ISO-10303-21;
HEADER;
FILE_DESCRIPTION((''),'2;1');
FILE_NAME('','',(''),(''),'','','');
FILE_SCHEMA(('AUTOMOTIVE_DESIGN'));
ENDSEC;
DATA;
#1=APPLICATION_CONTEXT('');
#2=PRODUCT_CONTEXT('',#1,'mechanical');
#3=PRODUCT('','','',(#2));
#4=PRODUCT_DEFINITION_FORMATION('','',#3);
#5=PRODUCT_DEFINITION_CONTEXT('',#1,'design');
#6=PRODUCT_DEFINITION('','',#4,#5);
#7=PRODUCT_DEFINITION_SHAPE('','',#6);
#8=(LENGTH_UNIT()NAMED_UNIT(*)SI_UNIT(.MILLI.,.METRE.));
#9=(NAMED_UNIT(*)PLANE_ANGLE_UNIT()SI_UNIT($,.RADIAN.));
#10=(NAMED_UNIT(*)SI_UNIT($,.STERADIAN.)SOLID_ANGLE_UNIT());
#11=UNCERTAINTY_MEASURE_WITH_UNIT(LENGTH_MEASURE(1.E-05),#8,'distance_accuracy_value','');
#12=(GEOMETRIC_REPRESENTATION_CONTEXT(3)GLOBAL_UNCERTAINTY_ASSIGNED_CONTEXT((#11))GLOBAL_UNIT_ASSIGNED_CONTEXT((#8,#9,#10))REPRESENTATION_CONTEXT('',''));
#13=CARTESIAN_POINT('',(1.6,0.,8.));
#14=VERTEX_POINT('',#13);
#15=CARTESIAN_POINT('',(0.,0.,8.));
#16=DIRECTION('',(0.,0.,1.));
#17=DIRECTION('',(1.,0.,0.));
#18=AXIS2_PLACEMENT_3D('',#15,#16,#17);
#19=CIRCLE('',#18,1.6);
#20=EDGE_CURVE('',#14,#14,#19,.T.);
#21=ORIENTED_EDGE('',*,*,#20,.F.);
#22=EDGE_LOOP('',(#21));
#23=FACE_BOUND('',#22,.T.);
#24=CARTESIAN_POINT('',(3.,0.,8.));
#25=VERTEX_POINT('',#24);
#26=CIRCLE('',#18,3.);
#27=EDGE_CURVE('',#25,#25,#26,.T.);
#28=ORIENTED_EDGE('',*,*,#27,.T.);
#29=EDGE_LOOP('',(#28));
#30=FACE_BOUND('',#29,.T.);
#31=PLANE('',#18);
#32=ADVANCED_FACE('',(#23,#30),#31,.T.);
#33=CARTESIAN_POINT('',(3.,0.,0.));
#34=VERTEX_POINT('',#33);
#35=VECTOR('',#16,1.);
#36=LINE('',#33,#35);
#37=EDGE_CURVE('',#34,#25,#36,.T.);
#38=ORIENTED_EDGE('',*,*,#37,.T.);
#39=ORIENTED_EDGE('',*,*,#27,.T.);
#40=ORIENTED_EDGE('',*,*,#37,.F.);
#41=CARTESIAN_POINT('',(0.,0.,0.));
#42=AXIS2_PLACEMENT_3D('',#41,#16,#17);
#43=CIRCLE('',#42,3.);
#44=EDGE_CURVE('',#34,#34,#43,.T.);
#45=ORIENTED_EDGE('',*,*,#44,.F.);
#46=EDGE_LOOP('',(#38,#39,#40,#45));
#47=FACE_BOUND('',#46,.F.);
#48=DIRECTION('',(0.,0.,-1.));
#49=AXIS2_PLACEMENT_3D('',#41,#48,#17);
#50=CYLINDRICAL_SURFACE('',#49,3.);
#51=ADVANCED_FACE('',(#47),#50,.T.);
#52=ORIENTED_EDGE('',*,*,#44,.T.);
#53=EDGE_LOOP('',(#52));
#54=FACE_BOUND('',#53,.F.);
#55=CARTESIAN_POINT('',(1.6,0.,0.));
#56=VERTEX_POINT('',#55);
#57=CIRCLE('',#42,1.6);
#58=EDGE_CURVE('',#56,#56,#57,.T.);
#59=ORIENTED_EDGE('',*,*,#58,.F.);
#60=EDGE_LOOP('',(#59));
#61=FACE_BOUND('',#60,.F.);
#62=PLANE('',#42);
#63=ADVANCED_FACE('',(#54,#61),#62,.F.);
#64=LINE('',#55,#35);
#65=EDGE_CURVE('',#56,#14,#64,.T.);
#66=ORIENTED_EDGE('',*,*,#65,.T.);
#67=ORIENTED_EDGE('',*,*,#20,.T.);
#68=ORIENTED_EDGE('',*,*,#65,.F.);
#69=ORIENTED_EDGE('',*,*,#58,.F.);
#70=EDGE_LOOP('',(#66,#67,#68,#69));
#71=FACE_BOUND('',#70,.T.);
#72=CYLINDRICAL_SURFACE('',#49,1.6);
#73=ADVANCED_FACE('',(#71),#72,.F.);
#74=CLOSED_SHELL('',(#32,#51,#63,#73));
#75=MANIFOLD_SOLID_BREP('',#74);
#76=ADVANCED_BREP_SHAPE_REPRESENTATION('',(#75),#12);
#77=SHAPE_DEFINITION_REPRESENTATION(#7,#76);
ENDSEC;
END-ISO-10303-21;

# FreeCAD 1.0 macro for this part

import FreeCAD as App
import Part
import Sketcher

doc = App.newDocument("Part")
body = doc.addObject("PartDesign::Body", "Body")

# Sketch on XY plane
sketch1 = body.newObject("Sketcher::SketchObject", "Sketch")
sketch1.AttachmentSupport = (doc.getObject("XY_Plane"), [""])
sketch1.MapMode = "FlatFace"
sketch1.addGeometry([
    Part.Circle(App.Vector(0, 0, 0), App.Vector(0, 0, 1), 3),
    Part.Circle(App.Vector(0, 0, 0), App.Vector(0, 0, 1), 1.6),
], False)
sketch1.addConstraint([
    Sketcher.Constraint("Coincident", 0, 3, -1, 1),
    Sketcher.Constraint("Coincident", 1, 3, -1, 1),
    Sketcher.Constraint("Diameter", 0, 6.0),
    Sketcher.Constraint("Diameter", 1, 3.2),
])
pad1 = body.newObject("PartDesign::Pad", "Pad")
pad1.Profile = sketch1
pad1.Length = 8

doc.recompute()
